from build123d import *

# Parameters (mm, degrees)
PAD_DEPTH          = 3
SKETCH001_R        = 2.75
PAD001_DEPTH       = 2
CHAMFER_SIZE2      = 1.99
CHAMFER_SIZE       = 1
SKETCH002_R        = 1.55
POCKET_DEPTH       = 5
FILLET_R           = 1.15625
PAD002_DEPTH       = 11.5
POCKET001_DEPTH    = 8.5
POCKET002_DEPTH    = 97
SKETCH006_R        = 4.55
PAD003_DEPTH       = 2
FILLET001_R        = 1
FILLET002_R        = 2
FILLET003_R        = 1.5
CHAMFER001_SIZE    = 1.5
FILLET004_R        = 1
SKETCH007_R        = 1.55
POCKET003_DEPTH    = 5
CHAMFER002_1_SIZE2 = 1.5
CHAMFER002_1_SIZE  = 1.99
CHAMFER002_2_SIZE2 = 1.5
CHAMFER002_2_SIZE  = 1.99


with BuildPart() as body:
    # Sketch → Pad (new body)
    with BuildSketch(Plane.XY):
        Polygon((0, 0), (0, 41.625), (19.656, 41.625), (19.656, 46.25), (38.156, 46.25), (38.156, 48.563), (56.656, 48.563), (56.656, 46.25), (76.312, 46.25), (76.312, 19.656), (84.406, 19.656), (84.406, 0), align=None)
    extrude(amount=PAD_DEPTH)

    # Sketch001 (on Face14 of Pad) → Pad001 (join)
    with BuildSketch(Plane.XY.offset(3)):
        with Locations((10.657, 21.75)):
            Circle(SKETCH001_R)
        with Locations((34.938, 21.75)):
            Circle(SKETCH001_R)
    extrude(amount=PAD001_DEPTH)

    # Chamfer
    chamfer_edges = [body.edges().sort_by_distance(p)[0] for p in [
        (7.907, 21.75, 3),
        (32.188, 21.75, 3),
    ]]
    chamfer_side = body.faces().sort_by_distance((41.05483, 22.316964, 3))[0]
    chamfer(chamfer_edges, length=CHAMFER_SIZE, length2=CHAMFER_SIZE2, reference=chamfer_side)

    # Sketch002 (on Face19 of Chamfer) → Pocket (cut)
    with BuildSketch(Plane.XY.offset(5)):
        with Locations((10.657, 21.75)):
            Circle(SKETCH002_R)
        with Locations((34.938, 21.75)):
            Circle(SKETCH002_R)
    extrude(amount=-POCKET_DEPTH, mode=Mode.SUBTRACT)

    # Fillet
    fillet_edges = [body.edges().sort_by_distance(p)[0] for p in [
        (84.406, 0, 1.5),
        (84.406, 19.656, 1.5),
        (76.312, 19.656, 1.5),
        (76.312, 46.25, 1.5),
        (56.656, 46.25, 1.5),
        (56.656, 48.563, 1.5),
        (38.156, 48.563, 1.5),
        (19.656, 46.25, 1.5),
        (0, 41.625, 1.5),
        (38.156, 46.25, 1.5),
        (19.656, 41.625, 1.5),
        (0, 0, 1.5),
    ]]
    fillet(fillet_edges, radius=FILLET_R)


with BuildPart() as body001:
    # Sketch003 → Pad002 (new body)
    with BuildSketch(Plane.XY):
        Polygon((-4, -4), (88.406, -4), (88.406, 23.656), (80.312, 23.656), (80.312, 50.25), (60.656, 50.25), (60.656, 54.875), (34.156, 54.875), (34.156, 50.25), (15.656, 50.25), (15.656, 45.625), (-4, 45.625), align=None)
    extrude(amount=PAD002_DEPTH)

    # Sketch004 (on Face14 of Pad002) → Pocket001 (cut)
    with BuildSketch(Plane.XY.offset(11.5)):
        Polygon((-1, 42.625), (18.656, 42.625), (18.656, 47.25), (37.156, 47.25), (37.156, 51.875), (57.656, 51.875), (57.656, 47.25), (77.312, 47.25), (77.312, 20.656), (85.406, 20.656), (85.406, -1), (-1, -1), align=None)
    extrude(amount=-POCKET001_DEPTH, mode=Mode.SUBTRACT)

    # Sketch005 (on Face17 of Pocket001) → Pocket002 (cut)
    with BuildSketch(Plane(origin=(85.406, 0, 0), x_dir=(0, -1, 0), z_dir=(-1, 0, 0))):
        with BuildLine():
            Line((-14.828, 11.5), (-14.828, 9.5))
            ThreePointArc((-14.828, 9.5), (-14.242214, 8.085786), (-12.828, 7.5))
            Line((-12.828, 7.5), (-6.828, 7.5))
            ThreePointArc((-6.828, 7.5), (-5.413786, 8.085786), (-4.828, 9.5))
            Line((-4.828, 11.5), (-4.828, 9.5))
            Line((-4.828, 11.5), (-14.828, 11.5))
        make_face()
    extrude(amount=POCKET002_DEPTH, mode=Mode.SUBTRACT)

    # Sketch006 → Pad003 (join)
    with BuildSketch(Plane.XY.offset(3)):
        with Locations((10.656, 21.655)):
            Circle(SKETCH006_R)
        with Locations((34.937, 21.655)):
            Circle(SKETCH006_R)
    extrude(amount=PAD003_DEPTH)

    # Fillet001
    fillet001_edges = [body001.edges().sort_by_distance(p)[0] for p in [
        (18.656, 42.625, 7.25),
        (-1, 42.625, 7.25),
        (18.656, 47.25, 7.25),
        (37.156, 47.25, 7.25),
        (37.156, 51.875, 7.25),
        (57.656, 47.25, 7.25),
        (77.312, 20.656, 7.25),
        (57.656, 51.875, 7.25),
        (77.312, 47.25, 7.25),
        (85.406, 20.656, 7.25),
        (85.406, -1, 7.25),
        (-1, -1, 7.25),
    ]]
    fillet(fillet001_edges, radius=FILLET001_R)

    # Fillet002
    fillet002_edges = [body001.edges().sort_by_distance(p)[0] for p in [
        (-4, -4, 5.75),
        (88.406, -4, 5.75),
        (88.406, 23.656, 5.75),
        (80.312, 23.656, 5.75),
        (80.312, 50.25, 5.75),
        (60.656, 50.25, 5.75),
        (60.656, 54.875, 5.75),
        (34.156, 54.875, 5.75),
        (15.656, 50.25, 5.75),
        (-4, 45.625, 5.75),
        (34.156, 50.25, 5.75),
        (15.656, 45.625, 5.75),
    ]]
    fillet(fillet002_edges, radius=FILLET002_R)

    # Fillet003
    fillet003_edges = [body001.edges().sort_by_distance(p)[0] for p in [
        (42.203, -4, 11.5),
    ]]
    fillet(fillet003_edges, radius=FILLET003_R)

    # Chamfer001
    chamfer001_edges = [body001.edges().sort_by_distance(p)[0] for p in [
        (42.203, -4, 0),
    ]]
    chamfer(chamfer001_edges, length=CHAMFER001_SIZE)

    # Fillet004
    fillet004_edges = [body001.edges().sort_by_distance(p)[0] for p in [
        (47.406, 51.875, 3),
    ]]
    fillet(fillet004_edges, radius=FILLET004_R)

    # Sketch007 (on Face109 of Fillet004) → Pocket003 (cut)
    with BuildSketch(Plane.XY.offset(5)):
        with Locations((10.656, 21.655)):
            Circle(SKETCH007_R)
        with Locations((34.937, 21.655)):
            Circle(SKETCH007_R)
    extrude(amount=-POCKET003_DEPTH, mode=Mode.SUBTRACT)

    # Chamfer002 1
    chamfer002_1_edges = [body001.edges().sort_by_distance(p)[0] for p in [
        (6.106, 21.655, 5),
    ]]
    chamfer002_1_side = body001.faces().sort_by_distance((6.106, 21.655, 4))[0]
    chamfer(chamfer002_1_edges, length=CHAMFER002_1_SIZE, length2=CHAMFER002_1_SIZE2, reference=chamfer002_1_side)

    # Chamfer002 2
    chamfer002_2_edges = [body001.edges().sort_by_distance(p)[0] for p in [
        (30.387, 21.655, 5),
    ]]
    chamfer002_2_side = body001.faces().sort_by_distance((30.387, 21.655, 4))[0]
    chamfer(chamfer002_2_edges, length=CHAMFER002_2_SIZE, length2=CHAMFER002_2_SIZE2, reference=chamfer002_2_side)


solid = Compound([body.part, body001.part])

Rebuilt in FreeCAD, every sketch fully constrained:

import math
import FreeCAD as App
import Part
import Sketcher


def edges_at(feature, points):
    """Names of the edges that pass closest to the given points."""
    edges = feature.Shape.Edges
    near = lambda p: min(range(len(edges)), key=lambda i: edges[i].distToShape(Part.Vertex(*p))[0])
    return sorted({f"Edge{near(p) + 1}" for p in points})

doc = App.newDocument("Part")
params = doc.addObject("Spreadsheet::Sheet", "Params")
for row, (alias, value) in enumerate([
    ("sketch1_width", "18.5 mm"),
    ("pad1_length", "3 mm"),
    ("sketch2_diameter", "5.5 mm"),
    ("pad2_length", "2 mm"),
    ("chamfer_size", "1 mm"),
    ("chamfer_size2", "1.99 mm"),
    ("sketch3_diameter", "3.1 mm"),
    ("pocket1_length", "5 mm"),
    ("fillet_radius", "1.15625 mm"),
    ("sketch4_width", "26.5 mm"),
    ("sketch4_width2", "18.5 mm"),
    ("pad3_length", "11.5 mm"),
    ("sketch5_width", "20.5 mm"),
    ("sketch5_width2", "18.5 mm"),
    ("pocket2_length", "8.5 mm"),
    ("sketch6_radius", "1.999999 mm"),
    ("sketch6_width", "6 mm"),
    ("sketch6_height", "2 mm"),
    ("pocket3_length", "97 mm"),
    ("sketch7_diameter", "9.1 mm"),
    ("pad4_length", "2 mm"),
    ("fillet2_radius", "1 mm"),
    ("fillet3_radius", "2 mm"),
    ("fillet4_radius", "1.5 mm"),
    ("chamfer2_size", "1.5 mm"),
    ("fillet5_radius", "1 mm"),
    ("sketch8_diameter", "3.1 mm"),
    ("pocket4_length", "5 mm"),
    ("chamfer3_size", "1.99 mm"),
    ("chamfer3_size2", "1.5 mm"),
    ("chamfer4_size", "1.99 mm"),
    ("chamfer4_size2", "1.5 mm"),
], start=1):
    params.set(f"A{row}", alias)
    params.set(f"B{row}", "=" + value)
    params.setAlias(f"B{row}", alias)

body = doc.addObject("PartDesign::Body", "Body")

# Sketch on XY plane
sketch1 = body.newObject("Sketcher::SketchObject", "Sketch")
sketch1.AttachmentSupport = (doc.getObject("XY_Plane"), [""])
sketch1.MapMode = "FlatFace"
sketch1.addGeometry([
    Part.LineSegment(App.Vector(0, 41.6, 0), App.Vector(0, 0, 0)),  # 0
    Part.LineSegment(App.Vector(0, 0, 0), App.Vector(84.4, 0, 0)),  # 1
    Part.LineSegment(App.Vector(84.4, 0, 0), App.Vector(84.4, 19.7, 0)),  # 2
    Part.LineSegment(App.Vector(84.4, 19.7, 0), App.Vector(76.3, 19.7, 0)),  # 3
    Part.LineSegment(App.Vector(76.3, 19.7, 0), App.Vector(76.3, 46.2, 0)),  # 4
    Part.LineSegment(App.Vector(76.3, 46.2, 0), App.Vector(56.7, 46.2, 0)),  # 5
    Part.LineSegment(App.Vector(56.7, 46.2, 0), App.Vector(56.7, 48.6, 0)),  # 6
    Part.LineSegment(App.Vector(56.7, 48.6, 0), App.Vector(38.2, 48.6, 0)),  # 7
    Part.LineSegment(App.Vector(38.2, 48.6, 0), App.Vector(38.2, 46.2, 0)),  # 8
    Part.LineSegment(App.Vector(38.2, 46.2, 0), App.Vector(19.7, 46.2, 0)),  # 9
    Part.LineSegment(App.Vector(19.7, 46.2, 0), App.Vector(19.7, 41.6, 0)),  # 10
    Part.LineSegment(App.Vector(19.7, 41.6, 0), App.Vector(0, 41.6, 0)),  # 11
], False)
sketch1.addConstraint([
    Sketcher.Constraint("Coincident", 0, 2, 1, 1),
    Sketcher.Constraint("Coincident", 1, 2, 2, 1),
    Sketcher.Constraint("Coincident", 2, 2, 3, 1),
    Sketcher.Constraint("Coincident", 3, 2, 4, 1),
    Sketcher.Constraint("Coincident", 4, 2, 5, 1),
    Sketcher.Constraint("Coincident", 5, 2, 6, 1),
    Sketcher.Constraint("Coincident", 6, 2, 7, 1),
    Sketcher.Constraint("Coincident", 7, 2, 8, 1),
    Sketcher.Constraint("Coincident", 8, 2, 9, 1),
    Sketcher.Constraint("Coincident", 9, 2, 10, 1),
    Sketcher.Constraint("Coincident", 10, 2, 11, 1),
    Sketcher.Constraint("Coincident", 11, 2, 0, 1),
    Sketcher.Constraint("Vertical", 0),
    Sketcher.Constraint("Horizontal", 1),
    Sketcher.Constraint("Vertical", 2),
    Sketcher.Constraint("Horizontal", 3),
    Sketcher.Constraint("Vertical", 4),
    Sketcher.Constraint("Horizontal", 5),
    Sketcher.Constraint("Vertical", 6),
    Sketcher.Constraint("Horizontal", 7),
    Sketcher.Constraint("Vertical", 8),
    Sketcher.Constraint("Horizontal", 9),
    Sketcher.Constraint("Vertical", 10),
    Sketcher.Constraint("Horizontal", 11),
    Sketcher.Constraint("Coincident", 0, 2, -1, 1),
    Sketcher.Constraint("Horizontal", 5, 2, 8, 2),
    Sketcher.Constraint("Equal", 7, 9),
    Sketcher.Constraint("Equal", 5, 11),
    Sketcher.Constraint("Equal", 11, 2),
    Sketcher.Constraint("DistanceX", 7, 2, 7, 1, 18.5),
    Sketcher.Constraint("DistanceX", 1, 1, 1, 2, 84.406),
    Sketcher.Constraint("DistanceX", 3, 2, 3, 1, 8.094),
    Sketcher.Constraint("DistanceY", 0, 2, 0, 1, 41.625),
    Sketcher.Constraint("DistanceY", 4, 1, 4, 2, 26.594),
    Sketcher.Constraint("DistanceY", 6, 1, 6, 2, 2.313),
])
sketch1.setExpression("Constraints[29]", "Params.sketch1_width")
pad1 = body.newObject("PartDesign::Pad", "Pad")
pad1.Profile = sketch1
pad1.setExpression("Length", "Params.pad1_length")

# Sketch on XY plane
sketch2 = body.newObject("Sketcher::SketchObject", "Sketch001")
sketch2.AttachmentSupport = (doc.getObject("XY_Plane"), [""])
sketch2.MapMode = "FlatFace"
sketch2.AttachmentOffset = App.Placement(App.Vector(0, 0, 3), App.Rotation())
sketch2.addGeometry([
    Part.Circle(App.Vector(10.7, 21.8, 0), App.Vector(0, 0, 1), 2.8),
    Part.Circle(App.Vector(34.9, 21.8, 0), App.Vector(0, 0, 1), 2.8),
], False)
sketch2.addConstraint([
    Sketcher.Constraint("Equal", 0, 1),
    Sketcher.Constraint("Horizontal", 0, 3, 1, 3),
    Sketcher.Constraint("Diameter", 0, 5.5),
    Sketcher.Constraint("DistanceY", -1, 1, 0, 3, 21.75),
    Sketcher.Constraint("DistanceX", -1, 1, 0, 3, 10.657),
    Sketcher.Constraint("DistanceX", -1, 1, 1, 3, 34.938),
])
sketch2.setExpression("Constraints[2]", "Params.sketch2_diameter")
pad2 = body.newObject("PartDesign::Pad", "Pad001")
pad2.Profile = sketch2
pad2.setExpression("Length", "Params.pad2_length")
doc.recompute()

chamfer = body.newObject("PartDesign::Chamfer", "Chamfer")
chamfer.Base = (pad2, edges_at(pad2, [(7.907, 21.75, 3), (32.188, 21.75, 3)]))
chamfer.ChamferType = "Two distances"
chamfer.setExpression("Size", "Params.chamfer_size")
chamfer.setExpression("Size2", "Params.chamfer_size2")

# Sketch on XY plane
sketch3 = body.newObject("Sketcher::SketchObject", "Sketch002")
sketch3.AttachmentSupport = (doc.getObject("XY_Plane"), [""])
sketch3.MapMode = "FlatFace"
sketch3.AttachmentOffset = App.Placement(App.Vector(0, 0, 5), App.Rotation())
sketch3.addGeometry([
    Part.Circle(App.Vector(10.7, 21.8, 0), App.Vector(0, 0, 1), 1.6),
    Part.Circle(App.Vector(34.9, 21.8, 0), App.Vector(0, 0, 1), 1.6),
], False)
sketch3.addConstraint([
    Sketcher.Constraint("Equal", 0, 1),
    Sketcher.Constraint("Horizontal", 0, 3, 1, 3),
    Sketcher.Constraint("Diameter", 0, 3.1),
    Sketcher.Constraint("DistanceY", -1, 1, 0, 3, 21.75),
    Sketcher.Constraint("DistanceX", -1, 1, 0, 3, 10.657),
    Sketcher.Constraint("DistanceX", -1, 1, 1, 3, 34.938),
])
sketch3.setExpression("Constraints[2]", "Params.sketch3_diameter")
pocket1 = body.newObject("PartDesign::Pocket", "Pocket")
pocket1.Profile = sketch3
pocket1.setExpression("Length", "Params.pocket1_length")
doc.recompute()

fillet = body.newObject("PartDesign::Fillet", "Fillet")
fillet.Base = (pocket1, edges_at(pocket1, [
    (84.406, 0, 1.5),
    (84.406, 19.656, 1.5),
    (76.312, 19.656, 1.5),
    (76.312, 46.25, 1.5),
    (56.656, 46.25, 1.5),
    (56.656, 48.563, 1.5),
    (38.156, 48.563, 1.5),
    (19.656, 46.25, 1.5),
    (0, 41.625, 1.5),
    (38.156, 46.25, 1.5),
    (19.656, 41.625, 1.5),
    (0, 0, 1.5),
]))
fillet.setExpression("Radius", "Params.fillet_radius")
body2 = doc.addObject("PartDesign::Body", "Body001")

# Sketch on XY plane
sketch4 = body2.newObject("Sketcher::SketchObject", "Sketch003")
sketch4.AttachmentSupport = (doc.getObject("XY_Plane001"), [""])
sketch4.MapMode = "FlatFace"
sketch4.addGeometry([
    Part.LineSegment(App.Vector(-4, -4, 0), App.Vector(88.4, -4, 0)),  # 0
    Part.LineSegment(App.Vector(88.4, -4, 0), App.Vector(88.4, 23.7, 0)),  # 1
    Part.LineSegment(App.Vector(88.4, 23.7, 0), App.Vector(80.3, 23.7, 0)),  # 2
    Part.LineSegment(App.Vector(80.3, 23.7, 0), App.Vector(80.3, 50.2, 0)),  # 3
    Part.LineSegment(App.Vector(80.3, 50.2, 0), App.Vector(60.7, 50.2, 0)),  # 4
    Part.LineSegment(App.Vector(60.7, 50.2, 0), App.Vector(60.7, 54.9, 0)),  # 5
    Part.LineSegment(App.Vector(60.7, 54.9, 0), App.Vector(34.2, 54.9, 0)),  # 6
    Part.LineSegment(App.Vector(34.2, 54.9, 0), App.Vector(34.2, 50.2, 0)),  # 7
    Part.LineSegment(App.Vector(34.2, 50.2, 0), App.Vector(15.7, 50.2, 0)),  # 8
    Part.LineSegment(App.Vector(15.7, 50.2, 0), App.Vector(15.7, 45.6, 0)),  # 9
    Part.LineSegment(App.Vector(15.7, 45.6, 0), App.Vector(-4, 45.6, 0)),  # 10
    Part.LineSegment(App.Vector(-4, 45.6, 0), App.Vector(-4, -4, 0)),  # 11
], False)
sketch4.addConstraint([
    Sketcher.Constraint("Coincident", 0, 2, 1, 1),
    Sketcher.Constraint("Coincident", 1, 2, 2, 1),
    Sketcher.Constraint("Coincident", 2, 2, 3, 1),
    Sketcher.Constraint("Coincident", 3, 2, 4, 1),
    Sketcher.Constraint("Coincident", 4, 2, 5, 1),
    Sketcher.Constraint("Coincident", 5, 2, 6, 1),
    Sketcher.Constraint("Coincident", 6, 2, 7, 1),
    Sketcher.Constraint("Coincident", 7, 2, 8, 1),
    Sketcher.Constraint("Coincident", 8, 2, 9, 1),
    Sketcher.Constraint("Coincident", 9, 2, 10, 1),
    Sketcher.Constraint("Coincident", 10, 2, 11, 1),
    Sketcher.Constraint("Coincident", 11, 2, 0, 1),
    Sketcher.Constraint("Horizontal", 0),
    Sketcher.Constraint("Vertical", 1),
    Sketcher.Constraint("Horizontal", 2),
    Sketcher.Constraint("Vertical", 3),
    Sketcher.Constraint("Horizontal", 4),
    Sketcher.Constraint("Vertical", 5),
    Sketcher.Constraint("Horizontal", 6),
    Sketcher.Constraint("Vertical", 7),
    Sketcher.Constraint("Horizontal", 8),
    Sketcher.Constraint("Vertical", 9),
    Sketcher.Constraint("Horizontal", 10),
    Sketcher.Constraint("Vertical", 11),
    Sketcher.Constraint("Horizontal", 4, 2, 7, 2),
    Sketcher.Constraint("Equal", 4, 10),
    Sketcher.Constraint("Equal", 7, 9),
    Sketcher.Constraint("DistanceX", 6, 2, 6, 1, 26.5),
    Sketcher.Constraint("DistanceX", 8, 2, 8, 1, 18.5),
    Sketcher.Constraint("DistanceY", 0, 2, -1, 1, 4.0),
    Sketcher.Constraint("DistanceX", 10, 2, -1, 1, 4.0),
    Sketcher.Constraint("DistanceX", 0, 1, 0, 2, 92.406),
    Sketcher.Constraint("DistanceX", 2, 2, 2, 1, 8.094),
    Sketcher.Constraint("DistanceY", 1, 1, 1, 2, 27.656),
    Sketcher.Constraint("DistanceY", 3, 1, 3, 2, 26.594),
    Sketcher.Constraint("DistanceY", 5, 1, 5, 2, 4.625),
])
sketch4.setExpression("Constraints[27]", "Params.sketch4_width")
sketch4.setExpression("Constraints[28]", "Params.sketch4_width2")
pad3 = body2.newObject("PartDesign::Pad", "Pad002")
pad3.Profile = sketch4
pad3.setExpression("Length", "Params.pad3_length")

# Sketch on XY plane
sketch5 = body2.newObject("Sketcher::SketchObject", "Sketch004")
sketch5.AttachmentSupport = (doc.getObject("XY_Plane001"), [""])
sketch5.MapMode = "FlatFace"
sketch5.AttachmentOffset = App.Placement(App.Vector(0, 0, 11.5), App.Rotation())
sketch5.addGeometry([
    Part.LineSegment(App.Vector(18.7, 42.6, 0), App.Vector(-1, 42.6, 0)),  # 0
    Part.LineSegment(App.Vector(-1, 42.6, 0), App.Vector(-1, -1, 0)),  # 1
    Part.LineSegment(App.Vector(-1, -1, 0), App.Vector(85.4, -1, 0)),  # 2
    Part.LineSegment(App.Vector(85.4, -1, 0), App.Vector(85.4, 20.7, 0)),  # 3
    Part.LineSegment(App.Vector(85.4, 20.7, 0), App.Vector(77.3, 20.7, 0)),  # 4
    Part.LineSegment(App.Vector(77.3, 20.7, 0), App.Vector(77.3, 47.2, 0)),  # 5
    Part.LineSegment(App.Vector(77.3, 47.2, 0), App.Vector(57.7, 47.2, 0)),  # 6
    Part.LineSegment(App.Vector(57.7, 47.2, 0), App.Vector(57.7, 51.9, 0)),  # 7
    Part.LineSegment(App.Vector(57.7, 51.9, 0), App.Vector(37.2, 51.9, 0)),  # 8
    Part.LineSegment(App.Vector(37.2, 51.9, 0), App.Vector(37.2, 47.2, 0)),  # 9
    Part.LineSegment(App.Vector(37.2, 47.2, 0), App.Vector(18.7, 47.2, 0)),  # 10
    Part.LineSegment(App.Vector(18.7, 47.2, 0), App.Vector(18.7, 42.6, 0)),  # 11
], False)
sketch5.addConstraint([
    Sketcher.Constraint("Coincident", 0, 2, 1, 1),
    Sketcher.Constraint("Coincident", 1, 2, 2, 1),
    Sketcher.Constraint("Coincident", 2, 2, 3, 1),
    Sketcher.Constraint("Coincident", 3, 2, 4, 1),
    Sketcher.Constraint("Coincident", 4, 2, 5, 1),
    Sketcher.Constraint("Coincident", 5, 2, 6, 1),
    Sketcher.Constraint("Coincident", 6, 2, 7, 1),
    Sketcher.Constraint("Coincident", 7, 2, 8, 1),
    Sketcher.Constraint("Coincident", 8, 2, 9, 1),
    Sketcher.Constraint("Coincident", 9, 2, 10, 1),
    Sketcher.Constraint("Coincident", 10, 2, 11, 1),
    Sketcher.Constraint("Coincident", 11, 2, 0, 1),
    Sketcher.Constraint("Horizontal", 0),
    Sketcher.Constraint("Vertical", 1),
    Sketcher.Constraint("Horizontal", 2),
    Sketcher.Constraint("Vertical", 3),
    Sketcher.Constraint("Horizontal", 4),
    Sketcher.Constraint("Vertical", 5),
    Sketcher.Constraint("Horizontal", 6),
    Sketcher.Constraint("Vertical", 7),
    Sketcher.Constraint("Horizontal", 8),
    Sketcher.Constraint("Vertical", 9),
    Sketcher.Constraint("Horizontal", 10),
    Sketcher.Constraint("Vertical", 11),
    Sketcher.Constraint("Horizontal", 6, 2, 9, 2),
    Sketcher.Constraint("Equal", 0, 6),
    Sketcher.Constraint("Equal", 9, 11),
    Sketcher.Constraint("DistanceX", 8, 2, 8, 1, 20.5),
    Sketcher.Constraint("DistanceX", 10, 2, 10, 1, 18.5),
    Sketcher.Constraint("DistanceX", 0, 2, -1, 1, 1.0),
    Sketcher.Constraint("DistanceY", 1, 2, -1, 1, 1.0),
    Sketcher.Constraint("DistanceX", 0, 2, 0, 1, 19.656),
    Sketcher.Constraint("DistanceX", 2, 1, 2, 2, 86.406),
    Sketcher.Constraint("DistanceY", 1, 2, 1, 1, 43.625),
    Sketcher.Constraint("DistanceY", 3, 1, 3, 2, 21.656),
    Sketcher.Constraint("DistanceY", 5, 1, 5, 2, 26.594),
])
sketch5.setExpression("Constraints[27]", "Params.sketch5_width")
sketch5.setExpression("Constraints[28]", "Params.sketch5_width2")
pocket2 = body2.newObject("PartDesign::Pocket", "Pocket001")
pocket2.Profile = sketch5
pocket2.setExpression("Length", "Params.pocket2_length")

# Sketch on YZ plane
sketch6 = body2.newObject("Sketcher::SketchObject", "Sketch005")
sketch6.AttachmentSupport = (doc.getObject("YZ_Plane001"), [""])
sketch6.MapMode = "FlatFace"
sketch6.AttachmentOffset = App.Placement(App.Vector(0, 0, 85.406), App.Rotation())
sketch6.addGeometry([
    Part.LineSegment(App.Vector(14.8, 11.5, 0), App.Vector(14.8, 9.5, 0)),  # 0
    Part.ArcOfCircle(Part.Circle(App.Vector(12.8, 9.5, 0), App.Vector(0, 0, 1), 2), math.radians(-90), math.radians(0)),  # 1
    Part.LineSegment(App.Vector(12.8, 7.5, 0), App.Vector(6.8, 7.5, 0)),  # 2
    Part.ArcOfCircle(Part.Circle(App.Vector(6.8, 9.5, 0), App.Vector(0, 0, 1), 2), math.radians(180), math.radians(270)),  # 3
    Part.LineSegment(App.Vector(4.8, 9.5, 0), App.Vector(4.8, 11.5, 0)),  # 4
    Part.LineSegment(App.Vector(4.8, 11.5, 0), App.Vector(14.8, 11.5, 0)),  # 5
], False)
sketch6.addConstraint([
    Sketcher.Constraint("Tangent", 0, 2, 1, 2),
    Sketcher.Constraint("Tangent", 1, 1, 2, 1),
    Sketcher.Constraint("Tangent", 2, 2, 3, 2),
    Sketcher.Constraint("Tangent", 3, 1, 4, 1),
    Sketcher.Constraint("Coincident", 4, 2, 5, 1),
    Sketcher.Constraint("Coincident", 5, 2, 0, 1),
    Sketcher.Constraint("Vertical", 0),
    Sketcher.Constraint("Horizontal", 2),
    Sketcher.Constraint("Vertical", 4),
    Sketcher.Constraint("Horizontal", 5),
    Sketcher.Constraint("Equal", 1, 3),
    Sketcher.Constraint("Radius", 1, 1.999999),
    Sketcher.Constraint("DistanceX", 2, 2, 2, 1, 6.0),
    Sketcher.Constraint("DistanceY", 0, 2, 0, 1, 2.0),
    Sketcher.Constraint("DistanceY", -1, 1, 1, 3, 9.499999),
    Sketcher.Constraint("DistanceX", -1, 1, 1, 3, 12.828001),
])
sketch6.setExpression("Constraints[11]", "Params.sketch6_radius")
sketch6.setExpression("Constraints[12]", "Params.sketch6_width")
sketch6.setExpression("Constraints[13]", "Params.sketch6_height")
pocket3 = body2.newObject("PartDesign::Pocket", "Pocket002")
pocket3.Profile = sketch6
pocket3.setExpression("Length", "Params.pocket3_length")

# Sketch on XY plane
sketch7 = body2.newObject("Sketcher::SketchObject", "Sketch006")
sketch7.AttachmentSupport = (doc.getObject("XY_Plane001"), [""])
sketch7.MapMode = "FlatFace"
sketch7.AttachmentOffset = App.Placement(App.Vector(0, 0, 3), App.Rotation())
sketch7.addGeometry([
    Part.Circle(App.Vector(10.7, 21.7, 0), App.Vector(0, 0, 1), 4.5),
    Part.Circle(App.Vector(34.9, 21.7, 0), App.Vector(0, 0, 1), 4.5),
], False)
sketch7.addConstraint([
    Sketcher.Constraint("Equal", 0, 1),
    Sketcher.Constraint("Horizontal", 0, 3, 1, 3),
    Sketcher.Constraint("Diameter", 0, 9.1),
    Sketcher.Constraint("DistanceX", -1, 1, 0, 3, 10.656),
    Sketcher.Constraint("DistanceY", -1, 1, 0, 3, 21.655),
    Sketcher.Constraint("DistanceX", -1, 1, 1, 3, 34.937),
])
sketch7.setExpression("Constraints[2]", "Params.sketch7_diameter")
pad4 = body2.newObject("PartDesign::Pad", "Pad003")
pad4.Profile = sketch7
pad4.setExpression("Length", "Params.pad4_length")
doc.recompute()

fillet2 = body2.newObject("PartDesign::Fillet", "Fillet001")
fillet2.Base = (pad4, edges_at(pad4, [
    (18.656, 42.625, 7.25),
    (-1, 42.625, 7.25),
    (18.656, 47.25, 7.25),
    (37.156, 47.25, 7.25),
    (37.156, 51.875, 7.25),
    (57.656, 47.25, 7.25),
    (77.312, 20.656, 7.25),
    (57.656, 51.875, 7.25),
    (77.312, 47.25, 7.25),
    (85.406, 20.656, 7.25),
    (85.406, -1, 7.25),
    (-1, -1, 7.25),
]))
fillet2.setExpression("Radius", "Params.fillet2_radius")
doc.recompute()

fillet3 = body2.newObject("PartDesign::Fillet", "Fillet002")
fillet3.Base = (fillet2, edges_at(fillet2, [
    (-4, -4, 5.75),
    (88.406, -4, 5.75),
    (88.406, 23.656, 5.75),
    (80.312, 23.656, 5.75),
    (80.312, 50.25, 5.75),
    (60.656, 50.25, 5.75),
    (60.656, 54.875, 5.75),
    (34.156, 54.875, 5.75),
    (15.656, 50.25, 5.75),
    (-4, 45.625, 5.75),
    (34.156, 50.25, 5.75),
    (15.656, 45.625, 5.75),
]))
fillet3.setExpression("Radius", "Params.fillet3_radius")
doc.recompute()

fillet4 = body2.newObject("PartDesign::Fillet", "Fillet003")
fillet4.Base = (fillet3, edges_at(fillet3, [(42.203, -4, 11.5)]))
fillet4.setExpression("Radius", "Params.fillet4_radius")
doc.recompute()

chamfer2 = body2.newObject("PartDesign::Chamfer", "Chamfer001")
chamfer2.Base = (fillet4, edges_at(fillet4, [(42.203, -4, 0)]))
chamfer2.setExpression("Size", "Params.chamfer2_size")
doc.recompute()

fillet5 = body2.newObject("PartDesign::Fillet", "Fillet004")
fillet5.Base = (chamfer2, edges_at(chamfer2, [(47.406, 51.875, 3)]))
fillet5.setExpression("Radius", "Params.fillet5_radius")

# Sketch on XY plane
sketch8 = body2.newObject("Sketcher::SketchObject", "Sketch007")
sketch8.AttachmentSupport = (doc.getObject("XY_Plane001"), [""])
sketch8.MapMode = "FlatFace"
sketch8.AttachmentOffset = App.Placement(App.Vector(0, 0, 5), App.Rotation())
sketch8.addGeometry([
    Part.Circle(App.Vector(10.7, 21.7, 0), App.Vector(0, 0, 1), 1.6),
    Part.Circle(App.Vector(34.9, 21.7, 0), App.Vector(0, 0, 1), 1.6),
], False)
sketch8.addConstraint([
    Sketcher.Constraint("Equal", 0, 1),
    Sketcher.Constraint("Horizontal", 0, 3, 1, 3),
    Sketcher.Constraint("Diameter", 0, 3.1),
    Sketcher.Constraint("DistanceX", -1, 1, 0, 3, 10.656),
    Sketcher.Constraint("DistanceY", -1, 1, 0, 3, 21.655),
    Sketcher.Constraint("DistanceX", -1, 1, 1, 3, 34.937),
])
sketch8.setExpression("Constraints[2]", "Params.sketch8_diameter")
pocket4 = body2.newObject("PartDesign::Pocket", "Pocket003")
pocket4.Profile = sketch8
pocket4.setExpression("Length", "Params.pocket4_length")
doc.recompute()

chamfer3 = body2.newObject("PartDesign::Chamfer", "Chamfer002")
chamfer3.Base = (pocket4, edges_at(pocket4, [(6.106, 21.655, 5)]))
chamfer3.ChamferType = "Two distances"
chamfer3.setExpression("Size", "Params.chamfer3_size")
chamfer3.setExpression("Size2", "Params.chamfer3_size2")
doc.recompute()

chamfer4 = body2.newObject("PartDesign::Chamfer", "Chamfer003")
chamfer4.Base = (chamfer3, edges_at(chamfer3, [(30.387, 21.655, 5)]))
chamfer4.ChamferType = "Two distances"
chamfer4.setExpression("Size", "Params.chamfer4_size")
chamfer4.setExpression("Size2", "Params.chamfer4_size2")

doc.recompute()
